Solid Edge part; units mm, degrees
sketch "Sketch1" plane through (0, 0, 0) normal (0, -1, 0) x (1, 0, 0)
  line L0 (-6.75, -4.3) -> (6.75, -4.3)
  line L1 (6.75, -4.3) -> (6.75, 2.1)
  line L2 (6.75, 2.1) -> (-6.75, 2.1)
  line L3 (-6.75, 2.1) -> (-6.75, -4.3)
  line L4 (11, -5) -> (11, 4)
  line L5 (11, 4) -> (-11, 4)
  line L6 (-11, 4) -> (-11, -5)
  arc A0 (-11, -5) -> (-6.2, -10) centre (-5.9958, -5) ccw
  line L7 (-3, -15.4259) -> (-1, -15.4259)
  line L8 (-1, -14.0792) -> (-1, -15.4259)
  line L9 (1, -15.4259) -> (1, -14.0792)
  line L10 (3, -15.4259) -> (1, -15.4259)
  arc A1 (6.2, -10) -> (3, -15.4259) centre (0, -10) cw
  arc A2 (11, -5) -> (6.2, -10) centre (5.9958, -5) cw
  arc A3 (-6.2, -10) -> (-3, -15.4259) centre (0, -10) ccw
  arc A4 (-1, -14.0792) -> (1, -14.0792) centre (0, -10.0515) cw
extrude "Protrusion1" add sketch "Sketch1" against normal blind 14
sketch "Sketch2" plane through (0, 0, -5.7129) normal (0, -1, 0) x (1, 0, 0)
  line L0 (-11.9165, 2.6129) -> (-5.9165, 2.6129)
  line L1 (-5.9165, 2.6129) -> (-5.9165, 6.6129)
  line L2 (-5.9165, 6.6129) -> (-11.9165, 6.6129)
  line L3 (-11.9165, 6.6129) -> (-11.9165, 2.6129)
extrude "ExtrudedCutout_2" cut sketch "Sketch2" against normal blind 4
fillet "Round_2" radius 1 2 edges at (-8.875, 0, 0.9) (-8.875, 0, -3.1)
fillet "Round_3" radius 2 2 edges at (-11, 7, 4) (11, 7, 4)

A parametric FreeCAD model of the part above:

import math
import FreeCAD as App
import Part
import Sketcher
from FreeCAD import Vector
Q = App.Units.Quantity


def edges_at(feature, points):
    """Names of the edges that pass closest to the given points."""
    edges = feature.Shape.Edges
    near = lambda p: min(range(len(edges)), key=lambda i: edges[i].distToShape(Part.Vertex(*p))[0])
    return sorted({f"Edge{near(p) + 1}" for p in points})


def add_polygon(sketch, points):
    """Adds a closed chain of lines whose ends are joined by coincident constraints."""
    first, n = sketch.GeometryCount, len(points)
    for a, b in zip(points, points[1:] + points[:1]):
        sketch.addGeometry(Part.LineSegment(App.Vector(*a, 0), App.Vector(*b, 0)), False)
    for i in range(n):
        sketch.addConstraint(Sketcher.Constraint("Coincident", first + i, 2, first + (i + 1) % n, 1))

doc = App.newDocument("Part")
body = doc.addObject("PartDesign::Body", "Body")

# Sketch on XZ plane
sketch1 = doc.addObject("Sketcher::SketchObject", "Sketch")
body.addObject(sketch1)
sketch1.AttachmentSupport = (doc.XZ_Plane, [""])
sketch1.MapMode = "FlatFace"
sketch1.addGeometry(Part.ArcOfCircle(Part.Circle(Vector(6, -5, 0), Vector(0, 0, 1), 5), math.radians(-88), math.radians(0)), False)  # 0
sketch1.addGeometry(Part.LineSegment(Vector(11, -5, 0), Vector(11, 4, 0)), False)  # 1
sketch1.addGeometry(Part.LineSegment(Vector(11, 4, 0), Vector(-11, 4, 0)), False)  # 2
sketch1.addGeometry(Part.LineSegment(Vector(-11, 4, 0), Vector(-11, -5, 0)), False)  # 3
sketch1.addGeometry(Part.ArcOfCircle(Part.Circle(Vector(-6, -5, 0), Vector(0, 0, 1), 5), math.radians(180), math.radians(268)), False)  # 4
sketch1.addGeometry(Part.ArcOfCircle(Part.Circle(Vector(0, -10, 0), Vector(0, 0, 1), 6.2), math.radians(180), math.radians(241)), False)  # 5
sketch1.addGeometry(Part.LineSegment(Vector(-3, -15.4, 0), Vector(-1, -15.4, 0)), False)  # 6
sketch1.addGeometry(Part.LineSegment(Vector(-1, -15.4, 0), Vector(-1, -14.1, 0)), False)  # 7
sketch1.addGeometry(Part.ArcOfCircle(Part.Circle(Vector(0, -10.1, 0), Vector(0, 0, 1), 4.1), math.radians(-76), math.radians(256)), False)  # 8
sketch1.addGeometry(Part.LineSegment(Vector(1, -14.1, 0), Vector(1, -15.4, 0)), False)  # 9
sketch1.addGeometry(Part.LineSegment(Vector(1, -15.4, 0), Vector(3, -15.4, 0)), False)  # 10
sketch1.addGeometry(Part.ArcOfCircle(Part.Circle(Vector(0, -10, 0), Vector(0, 0, 1), 6.2), math.radians(-61), math.radians(0)), False)  # 11
add_polygon(sketch1, [(6.8, -4.3), (-6.8, -4.3), (-6.8, 2.1), (6.8, 2.1)])  # lines 12-15
sketch1.addConstraint([
    Sketcher.Constraint("Tangent", 0, 2, 1, 1),
    Sketcher.Constraint("Coincident", 1, 2, 2, 1),
    Sketcher.Constraint("Coincident", 2, 2, 3, 1),
    Sketcher.Constraint("Tangent", 3, 2, 4, 1),
    Sketcher.Constraint("Coincident", 4, 2, 5, 1),
    Sketcher.Constraint("Coincident", 5, 2, 6, 1),
    Sketcher.Constraint("Coincident", 6, 2, 7, 1),
    Sketcher.Constraint("Coincident", 7, 2, 8, 2),
    Sketcher.Constraint("Coincident", 8, 1, 9, 1),
    Sketcher.Constraint("Coincident", 9, 2, 10, 1),
    Sketcher.Constraint("Coincident", 10, 2, 11, 1),
    Sketcher.Constraint("Coincident", 11, 2, 0, 1),
    Sketcher.Constraint("Vertical", 1),
    Sketcher.Constraint("Horizontal", 2),
    Sketcher.Constraint("Vertical", 3),
    Sketcher.Constraint("Horizontal", 6),
    Sketcher.Constraint("Vertical", 7),
    Sketcher.Constraint("Vertical", 9),
    Sketcher.Constraint("Horizontal", 10),
    Sketcher.Constraint("Horizontal", 12),
    Sketcher.Constraint("Vertical", 13),
    Sketcher.Constraint("Horizontal", 14),
    Sketcher.Constraint("Vertical", 15),
    Sketcher.Constraint("Coincident", 11, 3, 5, 3),
    Sketcher.Constraint("Equal", 0, 4),
    Sketcher.Constraint("Equal", 5, 11),
    Sketcher.Constraint("Symmetric", 0, 3, 4, 3, -2),
    Sketcher.Constraint("Symmetric", 7, 2, 8, 1, -2),
    Sketcher.Constraint("Symmetric", 5, 2, 10, 2, -2),
    Sketcher.Constraint("Horizontal", 11, 3, 4, 2),
    Sketcher.Constraint("Radius", 5, Q("6.2 mm")),
    Sketcher.Constraint("DistanceX", 2, 2, 2, 1, Q("22 mm")),
    Sketcher.Constraint("DistanceX", 6, 1, 6, 2, Q("2 mm")),
    Sketcher.Constraint("DistanceY", 1, 1, 1, 2, Q("9 mm")),
    Sketcher.Constraint("Radius", 8, Q("4.15 mm")),
    Sketcher.Constraint("DistanceX", 12, 2, 12, 1, Q("13.5 mm")),
    Sketcher.Constraint("DistanceY", 13, 1, 13, 2, Q("6.4 mm")),
    Sketcher.Constraint("DistanceY", 0, 3, -1, 1, Q("5 mm")),
    Sketcher.Constraint("DistanceY", 5, 3, -1, 1, Q("10 mm")),
    Sketcher.Constraint("DistanceX", 5, 2, -1, 1, Q("3 mm")),
    Sketcher.Constraint("DistanceY", 12, 2, -1, 1, Q("4.3 mm")),
    Sketcher.Constraint("DistanceX", 12, 2, -1, 1, Q("6.75 mm")),
    Sketcher.Constraint("DistanceY", 7, 1, 7, 2, Q("1.3467 mm")),
])
pad1 = doc.addObject("PartDesign::Pad", "Pad")
body.addObject(pad1)
pad1.Profile = sketch1
pad1.Length = 14
pad1.Reversed = True

# Sketch on XZ plane
sketch2 = doc.addObject("Sketcher::SketchObject", "Sketch001")
body.addObject(sketch2)
sketch2.AttachmentSupport = (doc.XZ_Plane, [""])
sketch2.MapMode = "FlatFace"
add_polygon(sketch2, [(-11.9, 0.9), (-11.9, -3.1), (-5.9, -3.1), (-5.9, 0.9)])  # lines 0-3
sketch2.addConstraint([
    Sketcher.Constraint("Vertical", 0),
    Sketcher.Constraint("Horizontal", 1),
    Sketcher.Constraint("Vertical", 2),
    Sketcher.Constraint("Horizontal", 3),
    Sketcher.Constraint("DistanceX", 1, 1, 1, 2, Q("6 mm")),
    Sketcher.Constraint("DistanceY", 0, 2, 0, 1, Q("4 mm")),
    Sketcher.Constraint("DistanceY", 0, 2, -1, 1, Q("3.1 mm")),
    Sketcher.Constraint("DistanceX", 0, 2, -1, 1, Q("11.9165 mm")),
])
pocket1 = doc.addObject("PartDesign::Pocket", "Pocket")
body.addObject(pocket1)
pocket1.Profile = sketch2
pocket1.Length = 4
doc.recompute()

fillet = doc.addObject("PartDesign::Fillet", "Fillet")
body.addObject(fillet)
fillet.Base = (pocket1, edges_at(pocket1, [(-8.875, 0, 0.9), (-8.875, 0, -3.1)]))
fillet.Radius = 1
doc.recompute()

fillet2 = doc.addObject("PartDesign::Fillet", "Fillet001")
body.addObject(fillet2)
fillet2.Base = (fillet, edges_at(fillet, [(-11, 7, 4), (11, 7, 4)]))
fillet2.Radius = 2

doc.recompute()
